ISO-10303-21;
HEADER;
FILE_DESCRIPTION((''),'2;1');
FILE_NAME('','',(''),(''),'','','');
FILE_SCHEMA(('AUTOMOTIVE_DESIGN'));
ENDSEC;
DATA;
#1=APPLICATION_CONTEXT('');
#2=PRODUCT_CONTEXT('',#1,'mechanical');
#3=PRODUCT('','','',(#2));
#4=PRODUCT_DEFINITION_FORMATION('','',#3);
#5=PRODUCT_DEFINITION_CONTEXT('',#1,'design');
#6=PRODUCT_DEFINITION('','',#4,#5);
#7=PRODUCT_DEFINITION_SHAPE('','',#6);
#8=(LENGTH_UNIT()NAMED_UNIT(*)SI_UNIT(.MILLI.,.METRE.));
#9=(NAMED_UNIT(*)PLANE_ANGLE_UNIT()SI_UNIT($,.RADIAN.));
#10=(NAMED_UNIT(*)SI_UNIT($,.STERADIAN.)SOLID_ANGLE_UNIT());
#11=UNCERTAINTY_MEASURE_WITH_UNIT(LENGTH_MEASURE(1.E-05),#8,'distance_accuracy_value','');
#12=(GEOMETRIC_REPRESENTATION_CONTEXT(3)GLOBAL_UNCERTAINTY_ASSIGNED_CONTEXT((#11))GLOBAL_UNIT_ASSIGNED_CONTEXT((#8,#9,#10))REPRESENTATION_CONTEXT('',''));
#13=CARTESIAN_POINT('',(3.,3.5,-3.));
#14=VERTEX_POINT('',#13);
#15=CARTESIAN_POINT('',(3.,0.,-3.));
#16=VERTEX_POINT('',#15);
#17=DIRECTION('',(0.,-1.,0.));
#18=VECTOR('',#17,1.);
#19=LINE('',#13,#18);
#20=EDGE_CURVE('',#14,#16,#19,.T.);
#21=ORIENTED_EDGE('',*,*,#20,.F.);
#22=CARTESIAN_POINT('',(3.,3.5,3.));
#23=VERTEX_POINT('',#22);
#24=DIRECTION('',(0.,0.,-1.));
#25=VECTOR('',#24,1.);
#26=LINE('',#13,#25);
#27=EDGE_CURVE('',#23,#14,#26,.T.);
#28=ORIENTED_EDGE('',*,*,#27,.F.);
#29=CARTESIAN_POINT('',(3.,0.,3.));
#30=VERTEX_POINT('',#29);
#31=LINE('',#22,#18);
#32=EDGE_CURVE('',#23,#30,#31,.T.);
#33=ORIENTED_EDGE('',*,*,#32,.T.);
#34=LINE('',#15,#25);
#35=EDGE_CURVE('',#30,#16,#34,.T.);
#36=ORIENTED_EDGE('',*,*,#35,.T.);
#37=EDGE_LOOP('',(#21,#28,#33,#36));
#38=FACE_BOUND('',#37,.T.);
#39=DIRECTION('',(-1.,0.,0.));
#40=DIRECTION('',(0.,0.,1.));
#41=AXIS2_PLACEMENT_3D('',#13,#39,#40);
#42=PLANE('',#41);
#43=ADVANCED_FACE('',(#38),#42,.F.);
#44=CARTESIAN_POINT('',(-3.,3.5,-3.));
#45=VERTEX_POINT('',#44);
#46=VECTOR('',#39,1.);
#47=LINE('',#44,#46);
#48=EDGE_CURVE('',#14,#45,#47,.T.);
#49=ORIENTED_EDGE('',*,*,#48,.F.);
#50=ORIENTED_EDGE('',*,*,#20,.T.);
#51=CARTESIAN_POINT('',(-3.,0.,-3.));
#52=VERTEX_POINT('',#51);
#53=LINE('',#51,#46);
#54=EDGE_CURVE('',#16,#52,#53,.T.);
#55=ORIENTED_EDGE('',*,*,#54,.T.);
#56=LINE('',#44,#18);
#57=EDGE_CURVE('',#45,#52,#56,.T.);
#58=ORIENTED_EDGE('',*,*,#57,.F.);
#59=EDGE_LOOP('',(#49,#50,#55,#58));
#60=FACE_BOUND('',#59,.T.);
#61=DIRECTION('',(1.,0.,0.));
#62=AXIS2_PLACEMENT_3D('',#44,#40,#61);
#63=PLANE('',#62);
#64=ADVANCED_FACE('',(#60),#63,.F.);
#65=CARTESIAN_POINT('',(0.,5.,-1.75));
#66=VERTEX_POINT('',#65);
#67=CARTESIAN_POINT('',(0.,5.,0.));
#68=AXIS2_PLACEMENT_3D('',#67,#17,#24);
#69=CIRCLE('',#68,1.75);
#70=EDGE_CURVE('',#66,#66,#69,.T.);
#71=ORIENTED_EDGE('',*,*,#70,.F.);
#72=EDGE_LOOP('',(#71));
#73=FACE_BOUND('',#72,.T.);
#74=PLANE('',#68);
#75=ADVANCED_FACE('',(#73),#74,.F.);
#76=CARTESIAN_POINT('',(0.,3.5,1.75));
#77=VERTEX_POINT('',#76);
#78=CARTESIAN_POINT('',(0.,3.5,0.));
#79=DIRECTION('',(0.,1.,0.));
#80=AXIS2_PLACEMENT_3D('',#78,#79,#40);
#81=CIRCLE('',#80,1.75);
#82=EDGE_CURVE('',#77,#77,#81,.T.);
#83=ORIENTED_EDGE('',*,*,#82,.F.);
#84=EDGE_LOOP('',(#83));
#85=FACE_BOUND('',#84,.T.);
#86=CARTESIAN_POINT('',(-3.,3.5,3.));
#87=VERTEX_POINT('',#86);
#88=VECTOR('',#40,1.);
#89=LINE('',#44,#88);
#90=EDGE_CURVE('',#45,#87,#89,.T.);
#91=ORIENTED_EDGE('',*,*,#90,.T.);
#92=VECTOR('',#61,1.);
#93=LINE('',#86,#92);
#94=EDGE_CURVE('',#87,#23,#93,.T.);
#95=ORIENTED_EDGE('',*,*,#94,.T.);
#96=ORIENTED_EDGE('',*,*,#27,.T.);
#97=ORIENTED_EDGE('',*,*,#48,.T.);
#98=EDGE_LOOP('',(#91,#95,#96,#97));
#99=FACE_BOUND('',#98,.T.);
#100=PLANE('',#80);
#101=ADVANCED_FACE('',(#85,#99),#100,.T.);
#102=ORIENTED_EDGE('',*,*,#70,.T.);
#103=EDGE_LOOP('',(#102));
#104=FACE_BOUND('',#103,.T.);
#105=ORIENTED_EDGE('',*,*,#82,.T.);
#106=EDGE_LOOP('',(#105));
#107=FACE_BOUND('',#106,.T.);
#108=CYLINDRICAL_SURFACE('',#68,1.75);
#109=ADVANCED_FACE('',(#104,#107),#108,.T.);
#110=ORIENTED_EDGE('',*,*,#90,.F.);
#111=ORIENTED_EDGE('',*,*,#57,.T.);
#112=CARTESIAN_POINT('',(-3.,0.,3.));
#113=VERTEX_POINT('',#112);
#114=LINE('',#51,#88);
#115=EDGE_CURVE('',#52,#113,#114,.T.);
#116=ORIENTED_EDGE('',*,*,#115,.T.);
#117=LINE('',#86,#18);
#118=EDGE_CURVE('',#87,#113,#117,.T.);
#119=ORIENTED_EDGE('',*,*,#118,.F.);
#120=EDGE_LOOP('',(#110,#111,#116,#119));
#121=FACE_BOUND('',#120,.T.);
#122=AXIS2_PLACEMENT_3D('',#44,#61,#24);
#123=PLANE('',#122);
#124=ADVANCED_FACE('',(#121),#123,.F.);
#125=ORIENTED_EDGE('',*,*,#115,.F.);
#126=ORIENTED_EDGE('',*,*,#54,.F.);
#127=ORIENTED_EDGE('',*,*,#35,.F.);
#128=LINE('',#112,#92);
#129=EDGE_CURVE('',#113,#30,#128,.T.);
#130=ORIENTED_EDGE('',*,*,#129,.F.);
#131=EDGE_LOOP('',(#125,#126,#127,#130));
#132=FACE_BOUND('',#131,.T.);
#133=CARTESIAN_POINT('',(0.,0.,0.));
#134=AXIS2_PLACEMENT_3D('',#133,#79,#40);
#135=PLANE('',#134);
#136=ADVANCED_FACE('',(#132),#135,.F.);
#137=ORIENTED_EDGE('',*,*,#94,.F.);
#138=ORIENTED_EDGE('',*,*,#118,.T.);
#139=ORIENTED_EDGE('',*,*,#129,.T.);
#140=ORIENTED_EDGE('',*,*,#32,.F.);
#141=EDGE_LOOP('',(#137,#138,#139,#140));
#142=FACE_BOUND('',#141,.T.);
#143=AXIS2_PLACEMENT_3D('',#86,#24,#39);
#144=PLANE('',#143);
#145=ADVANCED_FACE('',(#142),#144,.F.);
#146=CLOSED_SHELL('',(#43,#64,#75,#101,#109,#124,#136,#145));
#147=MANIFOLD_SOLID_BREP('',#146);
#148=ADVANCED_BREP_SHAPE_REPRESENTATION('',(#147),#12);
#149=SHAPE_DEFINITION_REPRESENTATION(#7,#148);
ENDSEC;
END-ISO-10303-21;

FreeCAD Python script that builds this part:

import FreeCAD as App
import Part
import Sketcher

V = App.Vector


def add_polygon(sketch, points):
    """Adds a closed chain of lines whose ends are joined by coincident constraints."""
    first, n = sketch.GeometryCount, len(points)
    for a, b in zip(points, points[1:] + points[:1]):
        sketch.addGeometry(Part.LineSegment(App.Vector(*a, 0), App.Vector(*b, 0)), False)
    for i in range(n):
        sketch.addConstraint(Sketcher.Constraint("Coincident", first + i, 2, first + (i + 1) % n, 1))

doc = App.newDocument("Part")
body = doc.addObject("PartDesign::Body", "Body")

sketch1 = body.newObject("Sketcher::SketchObject", "Sketch")
sketch1.AttachmentSupport = (doc.getObject("XZ_Plane"), [""])
sketch1.MapMode = "FlatFace"
add_polygon(sketch1, [(-3, -3), (-3, 3), (3, 3), (3, -3)])
sketch1.addConstraint([
    Sketcher.Constraint("Vertical", 0),
    Sketcher.Constraint("Horizontal", 1),
    Sketcher.Constraint("Vertical", 2),
    Sketcher.Constraint("Horizontal", 3),
    Sketcher.Constraint("Symmetric", 0, 2, 2, 2, -1, 1),
    Sketcher.Constraint("Equal", 3, 0),
    Sketcher.Constraint("DistanceX", 1, 1, 1, 2, 6.0),
])
pad1 = body.newObject("PartDesign::Pad", "Pad")
pad1.Profile = sketch1
pad1.Length = 3.5
pad1.Reversed = True

sketch2 = body.newObject("Sketcher::SketchObject", "Sketch001")
sketch2.AttachmentSupport = (doc.getObject("XZ_Plane"), [""])
sketch2.MapMode = "FlatFace"
sketch2.addGeometry(Part.Circle(V(0, 0, 0), V(0, 0, 1), 1.75), False)
sketch2.addConstraint([
    Sketcher.Constraint("Coincident", 0, 3, -1, 1),
    Sketcher.Constraint("Diameter", 0, 3.5),
])
pad2 = body.newObject("PartDesign::Pad", "Pad001")
pad2.Profile = sketch2
pad2.Length = 5
pad2.Reversed = True

doc.recompute()
